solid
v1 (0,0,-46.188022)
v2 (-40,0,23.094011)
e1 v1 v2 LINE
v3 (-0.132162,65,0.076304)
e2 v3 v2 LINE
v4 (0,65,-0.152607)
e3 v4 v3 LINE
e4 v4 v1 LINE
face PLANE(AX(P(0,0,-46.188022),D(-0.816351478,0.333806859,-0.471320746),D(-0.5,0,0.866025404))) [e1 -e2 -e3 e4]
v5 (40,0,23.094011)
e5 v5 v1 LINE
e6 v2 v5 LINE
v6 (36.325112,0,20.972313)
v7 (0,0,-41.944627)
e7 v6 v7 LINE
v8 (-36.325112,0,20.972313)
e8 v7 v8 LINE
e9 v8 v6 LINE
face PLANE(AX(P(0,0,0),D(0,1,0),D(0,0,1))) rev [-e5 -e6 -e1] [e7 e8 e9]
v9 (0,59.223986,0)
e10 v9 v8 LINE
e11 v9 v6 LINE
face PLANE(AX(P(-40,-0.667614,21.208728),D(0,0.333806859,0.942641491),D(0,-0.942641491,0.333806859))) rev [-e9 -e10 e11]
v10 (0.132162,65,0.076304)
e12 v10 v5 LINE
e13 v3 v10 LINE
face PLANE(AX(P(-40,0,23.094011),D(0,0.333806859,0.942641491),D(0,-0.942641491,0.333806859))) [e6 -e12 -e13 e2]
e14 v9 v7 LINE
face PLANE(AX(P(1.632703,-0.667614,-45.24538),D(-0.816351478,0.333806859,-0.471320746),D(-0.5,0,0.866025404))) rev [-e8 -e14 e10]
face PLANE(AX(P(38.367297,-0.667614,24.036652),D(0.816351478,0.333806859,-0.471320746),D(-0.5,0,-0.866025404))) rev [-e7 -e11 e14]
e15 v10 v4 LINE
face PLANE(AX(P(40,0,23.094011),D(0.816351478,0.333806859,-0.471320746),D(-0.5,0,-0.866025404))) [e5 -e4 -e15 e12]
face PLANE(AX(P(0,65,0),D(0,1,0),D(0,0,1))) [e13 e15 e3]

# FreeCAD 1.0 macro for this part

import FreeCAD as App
import Part
import Sketcher
Q = App.Units.Quantity


def faces_at(feature, points):
    """Names of the faces that lie closest to the given points."""
    faces = feature.Shape.Faces
    near = lambda p: min(range(len(faces)), key=lambda i: faces[i].distToShape(Part.Vertex(*p))[0])
    return sorted({f"Face{near(p) + 1}" for p in points})

doc = App.newDocument("Part")
body = doc.addObject("PartDesign::Body", "Body")

# Sketch on XZ plane
sketch1 = body.newObject("Sketcher::SketchObject", "Sketch")
sketch1.AttachmentSupport = (doc.getObject("XZ_Plane"), [""])
sketch1.MapMode = "FlatFace"
sketch1.addGeometry(Part.LineSegment(App.Vector(40, 23, 0), App.Vector(0, -46, 0)), False)
sketch1.addGeometry(Part.LineSegment(App.Vector(0, -46, 0), App.Vector(-40, 23, 0)), False)
sketch1.addGeometry(Part.LineSegment(App.Vector(-40, 23, 0), App.Vector(40, 23, 0)), False)
sketch1.addConstraint(Sketcher.Constraint("Coincident", 0, 2, 1, 1))
sketch1.addConstraint(Sketcher.Constraint("Coincident", 1, 2, 2, 1))
sketch1.addConstraint(Sketcher.Constraint("Coincident", 2, 2, 0, 1))
sketch1.addConstraint(Sketcher.Constraint("Horizontal", 2))
sketch1.addConstraint(Sketcher.Constraint("PointOnObject", 0, 2, -2))
sketch1.addConstraint(Sketcher.Constraint("Equal", 0, 1))
sketch1.addConstraint(Sketcher.Constraint("DistanceX", 2, 1, 2, 2, Q("80 mm")))
sketch1.addConstraint(Sketcher.Constraint("Angle", 0, Q("-120 deg")))
sketch1.addConstraint(Sketcher.Constraint("DistanceY", 0, 2, -1, 1, Q("46.188022 mm")))
pad1 = body.newObject("PartDesign::Pad", "Pad")
pad1.Profile = sketch1
pad1.Length = 65
pad1.Reversed = True
pad1.TaperAngle = -19.5
doc.recompute()

thickness = body.newObject("PartDesign::Thickness", "Thickness")
thickness.Base = (pad1, faces_at(pad1, [(-10, 0, 5.774)]))
thickness.Value = 2
thickness.Reversed = True
thickness.Join = "Arc"

doc.recompute()
